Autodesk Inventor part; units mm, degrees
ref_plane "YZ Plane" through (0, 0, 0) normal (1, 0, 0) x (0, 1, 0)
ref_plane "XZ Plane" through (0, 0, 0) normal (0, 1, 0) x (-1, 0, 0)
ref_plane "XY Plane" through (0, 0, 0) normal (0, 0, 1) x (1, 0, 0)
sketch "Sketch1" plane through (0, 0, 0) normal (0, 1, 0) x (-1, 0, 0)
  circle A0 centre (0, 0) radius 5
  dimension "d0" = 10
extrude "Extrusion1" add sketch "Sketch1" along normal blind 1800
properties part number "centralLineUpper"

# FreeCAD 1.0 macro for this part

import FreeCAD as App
import Part
import Sketcher

V = App.Vector

doc = App.newDocument("Part")
body = doc.addObject("PartDesign::Body", "Body")

sketch1 = body.newObject("Sketcher::SketchObject", "Sketch")
sketch1.AttachmentSupport = (doc.getObject("XZ_Plane"), [""])
sketch1.MapMode = "FlatFace"
sketch1.addGeometry(Part.Circle(V(0, 0, 0), V(0, 0, 1), 5), False)
sketch1.addConstraint(Sketcher.Constraint("Coincident", 0, 3, -1, 1))
sketch1.addConstraint(Sketcher.Constraint("Diameter", 0, 10.0))
pad1 = body.newObject("PartDesign::Pad", "Pad")
pad1.Profile = sketch1
pad1.Length = 1800
pad1.Reversed = True

doc.recompute()
